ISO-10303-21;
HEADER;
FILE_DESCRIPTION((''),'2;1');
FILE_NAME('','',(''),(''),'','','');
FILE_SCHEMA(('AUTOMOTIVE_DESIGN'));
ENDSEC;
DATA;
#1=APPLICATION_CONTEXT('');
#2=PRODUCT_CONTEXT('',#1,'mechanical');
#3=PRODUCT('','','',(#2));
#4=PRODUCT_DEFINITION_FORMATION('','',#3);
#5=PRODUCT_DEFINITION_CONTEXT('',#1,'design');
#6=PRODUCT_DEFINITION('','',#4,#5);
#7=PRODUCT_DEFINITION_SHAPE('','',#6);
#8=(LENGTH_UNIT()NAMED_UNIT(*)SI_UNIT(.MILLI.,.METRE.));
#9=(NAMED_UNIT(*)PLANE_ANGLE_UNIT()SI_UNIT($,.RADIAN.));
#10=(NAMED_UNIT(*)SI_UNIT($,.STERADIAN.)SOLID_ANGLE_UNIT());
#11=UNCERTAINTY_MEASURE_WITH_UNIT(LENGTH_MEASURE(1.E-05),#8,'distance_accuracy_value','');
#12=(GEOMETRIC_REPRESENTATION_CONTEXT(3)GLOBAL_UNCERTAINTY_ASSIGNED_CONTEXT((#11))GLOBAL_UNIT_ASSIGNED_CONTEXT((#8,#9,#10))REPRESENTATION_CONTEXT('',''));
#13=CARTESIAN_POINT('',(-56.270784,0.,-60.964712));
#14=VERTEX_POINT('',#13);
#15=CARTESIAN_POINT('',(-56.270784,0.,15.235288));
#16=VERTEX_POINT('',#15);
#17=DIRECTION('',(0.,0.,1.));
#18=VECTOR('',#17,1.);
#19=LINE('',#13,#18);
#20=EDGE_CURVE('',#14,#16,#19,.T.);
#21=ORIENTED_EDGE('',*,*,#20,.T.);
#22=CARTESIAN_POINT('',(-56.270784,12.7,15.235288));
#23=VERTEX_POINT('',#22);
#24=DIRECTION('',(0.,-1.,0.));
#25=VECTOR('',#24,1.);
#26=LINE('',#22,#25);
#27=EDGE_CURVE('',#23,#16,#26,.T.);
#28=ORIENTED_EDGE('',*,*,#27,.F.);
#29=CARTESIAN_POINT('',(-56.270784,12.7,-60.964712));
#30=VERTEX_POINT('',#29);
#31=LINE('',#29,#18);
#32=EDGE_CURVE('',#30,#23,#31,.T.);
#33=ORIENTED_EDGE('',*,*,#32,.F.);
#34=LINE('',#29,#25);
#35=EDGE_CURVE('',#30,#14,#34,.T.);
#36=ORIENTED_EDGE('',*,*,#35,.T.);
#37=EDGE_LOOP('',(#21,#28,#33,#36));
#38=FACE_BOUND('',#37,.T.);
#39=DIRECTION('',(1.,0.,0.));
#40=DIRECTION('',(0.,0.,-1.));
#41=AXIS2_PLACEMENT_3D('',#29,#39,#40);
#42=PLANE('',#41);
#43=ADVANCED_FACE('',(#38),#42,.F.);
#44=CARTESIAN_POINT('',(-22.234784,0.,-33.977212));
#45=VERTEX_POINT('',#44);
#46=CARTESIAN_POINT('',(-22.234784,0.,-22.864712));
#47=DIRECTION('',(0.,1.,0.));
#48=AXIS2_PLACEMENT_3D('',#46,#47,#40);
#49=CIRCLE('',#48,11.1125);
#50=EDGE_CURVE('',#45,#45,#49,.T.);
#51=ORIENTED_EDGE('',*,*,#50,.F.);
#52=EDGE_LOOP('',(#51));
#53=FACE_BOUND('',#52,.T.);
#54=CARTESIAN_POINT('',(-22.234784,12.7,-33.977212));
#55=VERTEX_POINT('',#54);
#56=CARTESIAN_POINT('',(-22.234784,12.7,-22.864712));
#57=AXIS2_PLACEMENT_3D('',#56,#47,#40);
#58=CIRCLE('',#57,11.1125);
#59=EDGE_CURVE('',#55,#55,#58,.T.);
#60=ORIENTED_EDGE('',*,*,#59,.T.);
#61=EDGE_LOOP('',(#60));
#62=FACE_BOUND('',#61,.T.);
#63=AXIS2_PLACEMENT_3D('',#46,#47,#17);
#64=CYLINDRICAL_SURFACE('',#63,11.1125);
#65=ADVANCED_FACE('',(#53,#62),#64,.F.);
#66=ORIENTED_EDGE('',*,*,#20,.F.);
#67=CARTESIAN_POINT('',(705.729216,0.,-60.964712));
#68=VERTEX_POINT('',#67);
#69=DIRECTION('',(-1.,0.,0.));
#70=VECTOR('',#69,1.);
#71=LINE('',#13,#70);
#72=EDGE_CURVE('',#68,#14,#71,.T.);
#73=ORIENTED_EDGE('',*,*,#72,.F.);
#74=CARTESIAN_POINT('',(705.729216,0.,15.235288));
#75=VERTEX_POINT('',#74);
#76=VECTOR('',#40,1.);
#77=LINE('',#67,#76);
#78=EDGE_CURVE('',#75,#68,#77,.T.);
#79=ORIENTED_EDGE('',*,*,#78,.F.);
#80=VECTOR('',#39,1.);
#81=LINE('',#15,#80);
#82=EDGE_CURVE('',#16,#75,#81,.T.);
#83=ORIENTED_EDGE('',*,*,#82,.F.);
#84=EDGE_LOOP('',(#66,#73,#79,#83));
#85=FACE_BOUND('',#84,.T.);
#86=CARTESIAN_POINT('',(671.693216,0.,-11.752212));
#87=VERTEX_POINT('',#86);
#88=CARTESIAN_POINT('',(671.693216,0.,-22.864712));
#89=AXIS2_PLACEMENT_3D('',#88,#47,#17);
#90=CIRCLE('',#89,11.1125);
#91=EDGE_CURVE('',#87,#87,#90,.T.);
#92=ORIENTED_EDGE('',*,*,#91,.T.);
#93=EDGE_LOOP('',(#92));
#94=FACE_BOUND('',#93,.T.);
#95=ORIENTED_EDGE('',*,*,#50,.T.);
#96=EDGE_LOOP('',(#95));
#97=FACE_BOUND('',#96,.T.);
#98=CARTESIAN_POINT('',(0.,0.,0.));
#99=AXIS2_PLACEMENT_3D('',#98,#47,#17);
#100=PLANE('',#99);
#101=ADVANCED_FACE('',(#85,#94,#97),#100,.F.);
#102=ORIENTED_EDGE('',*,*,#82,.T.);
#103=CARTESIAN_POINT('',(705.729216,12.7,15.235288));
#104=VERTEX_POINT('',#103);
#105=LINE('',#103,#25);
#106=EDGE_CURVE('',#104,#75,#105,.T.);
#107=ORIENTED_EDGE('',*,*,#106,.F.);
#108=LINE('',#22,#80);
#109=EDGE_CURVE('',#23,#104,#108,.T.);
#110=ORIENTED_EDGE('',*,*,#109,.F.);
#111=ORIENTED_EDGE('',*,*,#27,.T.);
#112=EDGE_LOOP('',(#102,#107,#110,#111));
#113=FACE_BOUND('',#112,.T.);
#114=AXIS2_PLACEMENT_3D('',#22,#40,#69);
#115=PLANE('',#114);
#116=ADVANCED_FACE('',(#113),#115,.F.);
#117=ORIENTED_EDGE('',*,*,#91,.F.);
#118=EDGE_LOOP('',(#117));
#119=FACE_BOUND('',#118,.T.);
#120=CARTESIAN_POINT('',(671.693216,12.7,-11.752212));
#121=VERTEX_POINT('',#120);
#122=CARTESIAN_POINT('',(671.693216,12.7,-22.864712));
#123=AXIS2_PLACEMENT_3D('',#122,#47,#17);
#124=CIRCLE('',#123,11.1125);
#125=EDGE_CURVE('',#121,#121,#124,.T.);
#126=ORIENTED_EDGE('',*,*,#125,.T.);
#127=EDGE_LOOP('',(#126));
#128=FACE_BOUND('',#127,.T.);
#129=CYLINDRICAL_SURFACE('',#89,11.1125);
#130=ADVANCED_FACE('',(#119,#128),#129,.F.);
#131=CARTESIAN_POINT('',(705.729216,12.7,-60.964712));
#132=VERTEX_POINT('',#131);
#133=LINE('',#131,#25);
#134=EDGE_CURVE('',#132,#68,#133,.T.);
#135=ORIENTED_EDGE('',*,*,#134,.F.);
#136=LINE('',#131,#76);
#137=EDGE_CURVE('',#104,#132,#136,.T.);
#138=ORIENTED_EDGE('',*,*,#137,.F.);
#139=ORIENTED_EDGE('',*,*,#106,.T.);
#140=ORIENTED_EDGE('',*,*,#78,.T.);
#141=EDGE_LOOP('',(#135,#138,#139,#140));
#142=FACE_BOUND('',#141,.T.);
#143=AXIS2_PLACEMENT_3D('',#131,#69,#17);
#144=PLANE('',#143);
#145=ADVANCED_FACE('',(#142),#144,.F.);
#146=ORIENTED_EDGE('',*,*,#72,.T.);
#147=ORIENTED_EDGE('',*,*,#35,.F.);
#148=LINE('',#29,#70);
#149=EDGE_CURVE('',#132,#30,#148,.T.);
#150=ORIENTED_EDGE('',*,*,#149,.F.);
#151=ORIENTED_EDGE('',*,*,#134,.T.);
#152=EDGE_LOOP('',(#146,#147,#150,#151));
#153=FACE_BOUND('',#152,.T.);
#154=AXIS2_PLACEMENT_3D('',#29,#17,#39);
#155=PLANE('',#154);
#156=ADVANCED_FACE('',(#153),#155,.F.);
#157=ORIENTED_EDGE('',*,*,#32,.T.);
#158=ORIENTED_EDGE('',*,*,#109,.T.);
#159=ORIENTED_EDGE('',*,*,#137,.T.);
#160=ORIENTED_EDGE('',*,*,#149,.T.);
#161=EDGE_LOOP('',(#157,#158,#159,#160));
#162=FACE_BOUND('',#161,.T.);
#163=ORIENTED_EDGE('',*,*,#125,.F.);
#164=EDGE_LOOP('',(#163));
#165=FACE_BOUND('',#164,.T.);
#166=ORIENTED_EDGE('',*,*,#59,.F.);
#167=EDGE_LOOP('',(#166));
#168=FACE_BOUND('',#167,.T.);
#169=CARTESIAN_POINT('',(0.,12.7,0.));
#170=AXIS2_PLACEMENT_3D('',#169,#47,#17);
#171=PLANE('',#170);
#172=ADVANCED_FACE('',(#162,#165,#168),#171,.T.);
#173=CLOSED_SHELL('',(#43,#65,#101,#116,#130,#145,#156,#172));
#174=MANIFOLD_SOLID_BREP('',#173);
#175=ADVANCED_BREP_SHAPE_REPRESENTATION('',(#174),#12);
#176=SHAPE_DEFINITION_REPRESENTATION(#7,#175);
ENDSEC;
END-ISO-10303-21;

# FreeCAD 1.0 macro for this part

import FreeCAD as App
import Part
import Sketcher
from FreeCAD import Vector
Q = App.Units.Quantity

doc = App.newDocument("Part")
params = doc.addObject("Spreadsheet::Sheet", "Params")
for row, (alias, value) in enumerate([
    ("sketch1_width", "30 in"),
    ("sketch1_height", "3 in"),
    ("pad1_length", "0.5 in"),
    ("sketch2_diameter", "0.875 in"),
], start=1):
    params.set(f"A{row}", alias)
    params.set(f"B{row}", "=" + value)
    params.setAlias(f"B{row}", alias)

body = doc.addObject("PartDesign::Body", "Body")

# Sketch on XZ plane
sketch1 = body.newObject("Sketcher::SketchObject", "Sketch")
sketch1.AttachmentSupport = (doc.getObject("XZ_Plane"), [""])
sketch1.MapMode = "FlatFace"
sketch1.addGeometry(Part.LineSegment(Vector(-56, -61, 0), Vector(-56, 15, 0)), False)
sketch1.addGeometry(Part.LineSegment(Vector(-56, 15, 0), Vector(706, 15, 0)), False)
sketch1.addGeometry(Part.LineSegment(Vector(706, 15, 0), Vector(706, -61, 0)), False)
sketch1.addGeometry(Part.LineSegment(Vector(706, -61, 0), Vector(-56, -61, 0)), False)
sketch1.addConstraint(Sketcher.Constraint("Coincident", 0, 2, 1, 1))
sketch1.addConstraint(Sketcher.Constraint("Coincident", 1, 2, 2, 1))
sketch1.addConstraint(Sketcher.Constraint("Coincident", 2, 2, 3, 1))
sketch1.addConstraint(Sketcher.Constraint("Coincident", 3, 2, 0, 1))
sketch1.addConstraint(Sketcher.Constraint("Vertical", 0))
sketch1.addConstraint(Sketcher.Constraint("Horizontal", 1))
sketch1.addConstraint(Sketcher.Constraint("Vertical", 2))
sketch1.addConstraint(Sketcher.Constraint("Horizontal", 3))
sketch1.addConstraint(Sketcher.Constraint("DistanceX", 1, 1, 1, 2, Q("30 in")))
sketch1.addConstraint(Sketcher.Constraint("DistanceY", 0, 1, 0, 2, Q("3 in")))
sketch1.addConstraint(Sketcher.Constraint("DistanceY", -1, 1, 0, 2, 15.235288))
sketch1.addConstraint(Sketcher.Constraint("DistanceX", 0, 2, -1, 1, 56.270784))
sketch1.setExpression("Constraints[8]", "Params.sketch1_width")
sketch1.setExpression("Constraints[9]", "Params.sketch1_height")
pad1 = body.newObject("PartDesign::Pad", "Pad")
pad1.Profile = sketch1
pad1.setExpression("Length", "Params.pad1_length")
pad1.Reversed = True

# Sketch on XZ plane
sketch2 = body.newObject("Sketcher::SketchObject", "Sketch001")
sketch2.AttachmentSupport = (doc.getObject("XZ_Plane"), [""])
sketch2.MapMode = "FlatFace"
sketch2.AttachmentOffset = App.Placement(Vector(0, 0, -0.5 * 25.4), App.Rotation())
sketch2.addGeometry(Part.Circle(Vector(672, -23, 0), Vector(0, 0, 1), 11), False)
sketch2.addGeometry(Part.Circle(Vector(-22, -23, 0), Vector(0, 0, 1), 11), False)
sketch2.addConstraint(Sketcher.Constraint("Equal", 0, 1))
sketch2.addConstraint(Sketcher.Constraint("Horizontal", 0, 3, 1, 3))
sketch2.addConstraint(Sketcher.Constraint("Diameter", 0, Q("0.875 in")))
sketch2.addConstraint(Sketcher.Constraint("DistanceX", 1, 3, 0, 3, Q("27.32 in")))
sketch2.addConstraint(Sketcher.Constraint("DistanceY", 0, 3, -1, 1, 22.864712))
sketch2.addConstraint(Sketcher.Constraint("DistanceX", -1, 1, 0, 3, 671.693216))
sketch2.setExpression("Constraints[2]", "Params.sketch2_diameter")
pocket1 = body.newObject("PartDesign::Pocket", "Pocket")
pocket1.Profile = sketch2
pocket1.Type = "ThroughAll"
pocket1.Reversed = True

doc.recompute()
